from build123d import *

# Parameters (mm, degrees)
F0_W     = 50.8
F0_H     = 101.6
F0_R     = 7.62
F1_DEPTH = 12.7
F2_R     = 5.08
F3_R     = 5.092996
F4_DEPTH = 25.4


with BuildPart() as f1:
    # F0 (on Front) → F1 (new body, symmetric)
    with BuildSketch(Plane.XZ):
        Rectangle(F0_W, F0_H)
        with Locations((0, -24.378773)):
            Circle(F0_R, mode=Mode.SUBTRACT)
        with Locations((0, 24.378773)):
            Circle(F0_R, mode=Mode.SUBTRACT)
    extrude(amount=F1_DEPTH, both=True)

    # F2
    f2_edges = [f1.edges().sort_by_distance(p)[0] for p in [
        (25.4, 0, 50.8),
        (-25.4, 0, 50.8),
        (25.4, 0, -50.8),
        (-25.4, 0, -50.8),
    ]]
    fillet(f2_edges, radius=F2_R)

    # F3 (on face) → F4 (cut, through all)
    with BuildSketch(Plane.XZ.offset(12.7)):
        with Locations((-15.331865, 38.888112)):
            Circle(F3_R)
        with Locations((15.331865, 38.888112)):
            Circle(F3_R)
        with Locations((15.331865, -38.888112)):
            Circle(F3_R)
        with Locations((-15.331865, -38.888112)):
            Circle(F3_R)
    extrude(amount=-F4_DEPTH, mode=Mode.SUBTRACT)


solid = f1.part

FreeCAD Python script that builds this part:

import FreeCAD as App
import Part
import Sketcher
from FreeCAD import Vector
Q = App.Units.Quantity


def edges_at(feature, points):
    """Names of the edges that pass closest to the given points."""
    edges = feature.Shape.Edges
    near = lambda p: min(range(len(edges)), key=lambda i: edges[i].distToShape(Part.Vertex(*p))[0])
    return sorted({f"Edge{near(p) + 1}" for p in points})

doc = App.newDocument("Part")
body = doc.addObject("PartDesign::Body", "Body")

sketch1 = doc.addObject("Sketcher::SketchObject", "Sketch")
body.addObject(sketch1)
sketch1.AttachmentSupport = (doc.XZ_Plane, [""])
sketch1.MapMode = "FlatFace"
sketch1.addGeometry(Part.LineSegment(Vector(-25, 51, 0), Vector(-25, -51, 0)), False)
sketch1.addGeometry(Part.LineSegment(Vector(-25, -51, 0), Vector(25, -51, 0)), False)
sketch1.addGeometry(Part.LineSegment(Vector(25, -51, 0), Vector(25, 51, 0)), False)
sketch1.addGeometry(Part.LineSegment(Vector(25, 51, 0), Vector(-25, 51, 0)), False)
sketch1.addGeometry(Part.Circle(Vector(0, -24, 0), Vector(0, 0, 1), 8), False)
sketch1.addGeometry(Part.Circle(Vector(0, 24, 0), Vector(0, 0, 1), 8), False)
sketch1.addConstraint(Sketcher.Constraint("Coincident", 0, 2, 1, 1))
sketch1.addConstraint(Sketcher.Constraint("Coincident", 1, 2, 2, 1))
sketch1.addConstraint(Sketcher.Constraint("Coincident", 2, 2, 3, 1))
sketch1.addConstraint(Sketcher.Constraint("Coincident", 3, 2, 0, 1))
sketch1.addConstraint(Sketcher.Constraint("Vertical", 0))
sketch1.addConstraint(Sketcher.Constraint("Horizontal", 1))
sketch1.addConstraint(Sketcher.Constraint("Vertical", 2))
sketch1.addConstraint(Sketcher.Constraint("Horizontal", 3))
sketch1.addConstraint(Sketcher.Constraint("Equal", 4, 5))
sketch1.addConstraint(Sketcher.Constraint("Symmetric", 4, 3, 5, 3, -1, 1))
sketch1.addConstraint(Sketcher.Constraint("Symmetric", 0, 2, 2, 2, -1, 1))
sketch1.addConstraint(Sketcher.Constraint("PointOnObject", 4, 3, -2))
sketch1.addConstraint(Sketcher.Constraint("Diameter", 4, Q("0.6 in")))
sketch1.addConstraint(Sketcher.Constraint("DistanceX", 1, 1, 1, 2, Q("2 in")))
sketch1.addConstraint(Sketcher.Constraint("DistanceY", 0, 2, 0, 1, Q("4 in")))
sketch1.addConstraint(Sketcher.Constraint("DistanceY", 4, 3, -1, 1, Q("24.378773 mm")))
pad1 = doc.addObject("PartDesign::Pad", "Pad")
body.addObject(pad1)
pad1.Profile = sketch1
pad1.Length = Q("1 in")
pad1.Midplane = True
doc.recompute()

fillet = doc.addObject("PartDesign::Fillet", "Fillet")
body.addObject(fillet)
fillet.Base = (pad1, edges_at(pad1, [
    (25.4, 0, 50.8),
    (-25.4, 0, 50.8),
    (25.4, 0, -50.8),
    (-25.4, 0, -50.8),
]))
fillet.Radius = Q("0.2 in")

sketch2 = doc.addObject("Sketcher::SketchObject", "Sketch001")
body.addObject(sketch2)
sketch2.AttachmentSupport = (doc.XZ_Plane, [""])
sketch2.MapMode = "FlatFace"
sketch2.AttachmentOffset = App.Placement(Vector(0, 0, 0.5 * 25.4), App.Rotation())
sketch2.addGeometry(Part.Circle(Vector(-15, 39, 0), Vector(0, 0, 1), 5), False)
sketch2.addGeometry(Part.Circle(Vector(15, 39, 0), Vector(0, 0, 1), 5), False)
sketch2.addGeometry(Part.Circle(Vector(15, -39, 0), Vector(0, 0, 1), 5), False)
sketch2.addGeometry(Part.Circle(Vector(-15, -39, 0), Vector(0, 0, 1), 5), False)
sketch2.addConstraint(Sketcher.Constraint("Equal", 0, 1))
sketch2.addConstraint(Sketcher.Constraint("Equal", 1, 2))
sketch2.addConstraint(Sketcher.Constraint("Equal", 2, 3))
sketch2.addConstraint(Sketcher.Constraint("Symmetric", 0, 3, 2, 3, -1, 1))
sketch2.addConstraint(Sketcher.Constraint("Symmetric", 1, 3, 3, 3, -1, 1))
sketch2.addConstraint(Sketcher.Constraint("Symmetric", 0, 3, 1, 3, -2))
sketch2.addConstraint(Sketcher.Constraint("Diameter", 0, Q("10.185992 mm")))
sketch2.addConstraint(Sketcher.Constraint("DistanceX", 0, 3, 1, 3, Q("30.66373 mm")))
sketch2.addConstraint(Sketcher.Constraint("DistanceY", -1, 1, 0, 3, Q("38.888112 mm")))
pocket1 = doc.addObject("PartDesign::Pocket", "Pocket")
body.addObject(pocket1)
pocket1.Profile = sketch2
pocket1.Type = "ThroughAll"

doc.recompute()
